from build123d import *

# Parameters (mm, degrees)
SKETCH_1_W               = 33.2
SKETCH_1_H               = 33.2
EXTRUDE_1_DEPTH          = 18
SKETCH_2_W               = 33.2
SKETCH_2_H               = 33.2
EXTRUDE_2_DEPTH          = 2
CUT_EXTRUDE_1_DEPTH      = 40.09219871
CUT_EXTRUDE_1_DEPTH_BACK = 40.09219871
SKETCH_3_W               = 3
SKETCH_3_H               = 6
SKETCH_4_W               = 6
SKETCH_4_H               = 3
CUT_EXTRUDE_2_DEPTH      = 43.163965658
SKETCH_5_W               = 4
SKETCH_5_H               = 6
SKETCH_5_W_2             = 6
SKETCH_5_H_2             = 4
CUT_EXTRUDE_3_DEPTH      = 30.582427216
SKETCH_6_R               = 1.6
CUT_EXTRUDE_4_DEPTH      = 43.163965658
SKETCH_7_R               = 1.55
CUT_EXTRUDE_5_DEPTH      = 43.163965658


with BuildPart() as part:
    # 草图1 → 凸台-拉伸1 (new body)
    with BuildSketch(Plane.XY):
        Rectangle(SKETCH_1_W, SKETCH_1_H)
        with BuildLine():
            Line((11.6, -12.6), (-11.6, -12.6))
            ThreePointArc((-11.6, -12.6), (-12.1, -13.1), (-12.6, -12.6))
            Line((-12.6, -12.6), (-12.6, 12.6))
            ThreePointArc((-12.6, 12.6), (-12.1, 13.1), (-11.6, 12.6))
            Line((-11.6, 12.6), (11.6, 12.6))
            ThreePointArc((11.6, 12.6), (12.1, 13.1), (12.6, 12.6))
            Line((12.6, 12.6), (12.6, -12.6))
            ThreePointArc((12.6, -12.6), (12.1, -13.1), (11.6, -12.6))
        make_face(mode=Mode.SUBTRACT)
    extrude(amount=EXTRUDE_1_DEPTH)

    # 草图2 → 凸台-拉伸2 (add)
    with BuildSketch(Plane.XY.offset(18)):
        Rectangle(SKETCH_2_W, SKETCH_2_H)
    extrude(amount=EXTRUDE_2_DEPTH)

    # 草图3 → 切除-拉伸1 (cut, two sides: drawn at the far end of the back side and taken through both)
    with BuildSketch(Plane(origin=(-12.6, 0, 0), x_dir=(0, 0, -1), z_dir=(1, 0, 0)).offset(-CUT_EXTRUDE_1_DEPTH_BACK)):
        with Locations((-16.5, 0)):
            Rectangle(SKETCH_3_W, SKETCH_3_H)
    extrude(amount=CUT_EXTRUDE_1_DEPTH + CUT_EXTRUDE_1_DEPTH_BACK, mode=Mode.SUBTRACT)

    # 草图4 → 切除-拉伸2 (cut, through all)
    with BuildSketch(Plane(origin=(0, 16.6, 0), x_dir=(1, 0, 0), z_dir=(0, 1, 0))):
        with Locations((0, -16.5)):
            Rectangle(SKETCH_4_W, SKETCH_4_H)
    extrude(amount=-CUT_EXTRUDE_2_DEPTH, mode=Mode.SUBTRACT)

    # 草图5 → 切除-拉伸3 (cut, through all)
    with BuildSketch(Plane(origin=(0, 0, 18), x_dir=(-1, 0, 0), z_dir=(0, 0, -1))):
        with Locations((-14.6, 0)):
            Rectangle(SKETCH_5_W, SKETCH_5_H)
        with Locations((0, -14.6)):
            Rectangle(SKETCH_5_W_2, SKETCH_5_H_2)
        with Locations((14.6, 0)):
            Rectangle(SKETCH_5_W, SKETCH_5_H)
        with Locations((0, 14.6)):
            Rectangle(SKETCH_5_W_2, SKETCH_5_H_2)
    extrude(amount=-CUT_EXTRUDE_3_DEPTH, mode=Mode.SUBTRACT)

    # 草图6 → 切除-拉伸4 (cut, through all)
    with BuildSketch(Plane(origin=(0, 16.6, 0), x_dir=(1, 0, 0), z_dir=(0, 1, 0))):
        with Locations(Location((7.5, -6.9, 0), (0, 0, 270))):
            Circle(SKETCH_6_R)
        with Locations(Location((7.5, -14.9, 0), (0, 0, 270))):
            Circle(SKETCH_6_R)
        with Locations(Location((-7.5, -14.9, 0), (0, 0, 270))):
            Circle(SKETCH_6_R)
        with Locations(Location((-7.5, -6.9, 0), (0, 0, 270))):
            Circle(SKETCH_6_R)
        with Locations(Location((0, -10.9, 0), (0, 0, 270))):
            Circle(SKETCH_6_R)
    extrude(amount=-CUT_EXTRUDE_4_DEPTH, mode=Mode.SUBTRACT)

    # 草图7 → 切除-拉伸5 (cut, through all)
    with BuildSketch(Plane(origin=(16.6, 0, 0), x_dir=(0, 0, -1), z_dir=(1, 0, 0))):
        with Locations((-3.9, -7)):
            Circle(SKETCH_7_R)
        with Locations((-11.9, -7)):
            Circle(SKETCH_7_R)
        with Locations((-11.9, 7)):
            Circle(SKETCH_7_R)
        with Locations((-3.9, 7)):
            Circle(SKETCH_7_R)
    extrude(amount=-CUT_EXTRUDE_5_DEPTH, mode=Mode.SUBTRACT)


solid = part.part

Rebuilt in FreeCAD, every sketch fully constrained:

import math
import FreeCAD as App
import Part
import Sketcher
from FreeCAD import Vector


def add_polygon(sketch, points):
    """Adds a closed chain of lines whose ends are joined by coincident constraints."""
    first, n = sketch.GeometryCount, len(points)
    for a, b in zip(points, points[1:] + points[:1]):
        sketch.addGeometry(Part.LineSegment(App.Vector(*a, 0), App.Vector(*b, 0)), False)
    for i in range(n):
        sketch.addConstraint(Sketcher.Constraint("Coincident", first + i, 2, first + (i + 1) % n, 1))

doc = App.newDocument("Part")
body = doc.addObject("PartDesign::Body", "Body")

# Sketch on XY plane
sketch1 = body.newObject("Sketcher::SketchObject", "Sketch")
sketch1.AttachmentSupport = (doc.getObject("XY_Plane"), [""])
sketch1.MapMode = "FlatFace"
add_polygon(sketch1, [(-16.6, 16.6), (-16.6, -16.6), (16.6, -16.6), (16.6, 16.6)])  # lines 0-3
sketch1.addGeometry(Part.ArcOfCircle(Part.Circle(Vector(12.1, -12.6, 0), Vector(0, 0, 1), 0.5), math.radians(180), math.radians(360)), False)  # 4
sketch1.addGeometry(Part.LineSegment(Vector(11.6, -12.6, 0), Vector(-11.6, -12.6, 0)), False)  # 5
sketch1.addGeometry(Part.ArcOfCircle(Part.Circle(Vector(-12.1, -12.6, 0), Vector(0, 0, 1), 0.5), math.radians(180), math.radians(360)), False)  # 6
sketch1.addGeometry(Part.LineSegment(Vector(-12.6, -12.6, 0), Vector(-12.6, 12.6, 0)), False)  # 7
sketch1.addGeometry(Part.ArcOfCircle(Part.Circle(Vector(-12.1, 12.6, 0), Vector(0, 0, 1), 0.5), math.radians(0), math.radians(180)), False)  # 8
sketch1.addGeometry(Part.LineSegment(Vector(-11.6, 12.6, 0), Vector(11.6, 12.6, 0)), False)  # 9
sketch1.addGeometry(Part.ArcOfCircle(Part.Circle(Vector(12.1, 12.6, 0), Vector(0, 0, 1), 0.5), math.radians(0), math.radians(180)), False)  # 10
sketch1.addGeometry(Part.LineSegment(Vector(12.6, 12.6, 0), Vector(12.6, -12.6, 0)), False)  # 11
sketch1.addConstraint([
    Sketcher.Constraint("Coincident", 4, 1, 5, 1),
    Sketcher.Constraint("Coincident", 5, 2, 6, 2),
    Sketcher.Constraint("Tangent", 6, 1, 7, 1),
    Sketcher.Constraint("Tangent", 7, 2, 8, 2),
    Sketcher.Constraint("Coincident", 8, 1, 9, 1),
    Sketcher.Constraint("Coincident", 9, 2, 10, 2),
    Sketcher.Constraint("Tangent", 10, 1, 11, 1),
    Sketcher.Constraint("Tangent", 11, 2, 4, 2),
    Sketcher.Constraint("Vertical", 0),
    Sketcher.Constraint("Horizontal", 1),
    Sketcher.Constraint("Vertical", 2),
    Sketcher.Constraint("Horizontal", 3),
    Sketcher.Constraint("Horizontal", 5),
    Sketcher.Constraint("Vertical", 7),
    Sketcher.Constraint("Horizontal", 9),
    Sketcher.Constraint("Vertical", 11),
    Sketcher.Constraint("Equal", 4, 6),
    Sketcher.Constraint("Equal", 6, 8),
    Sketcher.Constraint("Equal", 8, 10),
    Sketcher.Constraint("Symmetric", 4, 3, 8, 3, -1, 1),
    Sketcher.Constraint("Symmetric", 0, 2, 2, 2, -1, 1),
    Sketcher.Constraint("Horizontal", 4, 3, 6, 3),
    Sketcher.Constraint("Horizontal", 8, 3, 10, 3),
    Sketcher.Constraint("Horizontal", 6, 3, 4, 1),
    Sketcher.Constraint("Horizontal", 7, 2, 8, 1),
    Sketcher.Constraint("Equal", 3, 0),
    Sketcher.Constraint("Radius", 4, 0.5),
    Sketcher.Constraint("DistanceX", 1, 1, 1, 2, 33.2),
    Sketcher.Constraint("DistanceX", 5, 2, 5, 1, 23.2),
    Sketcher.Constraint("DistanceY", 7, 1, 7, 2, 25.2),
])
pad1 = body.newObject("PartDesign::Pad", "Pad")
pad1.Profile = sketch1
pad1.Length = 18

# Sketch on XY plane
sketch2 = body.newObject("Sketcher::SketchObject", "Sketch001")
sketch2.AttachmentSupport = (doc.getObject("XY_Plane"), [""])
sketch2.MapMode = "FlatFace"
sketch2.AttachmentOffset = App.Placement(Vector(0, 0, 18), App.Rotation())
add_polygon(sketch2, [(-17, 17), (-17, -17), (17, -17), (17, 17)])  # lines 0-3
sketch2.addConstraint([
    Sketcher.Constraint("Vertical", 0),
    Sketcher.Constraint("Horizontal", 1),
    Sketcher.Constraint("Vertical", 2),
    Sketcher.Constraint("Horizontal", 3),
    Sketcher.Constraint("Symmetric", 0, 2, 2, 2, -1, 1),
    Sketcher.Constraint("Equal", 3, 0),
    Sketcher.Constraint("DistanceX", 1, 1, 1, 2, 33.2),
])
pad2 = body.newObject("PartDesign::Pad", "Pad001")
pad2.Profile = sketch2
pad2.Length = 2

# Sketch on YZ plane
sketch3 = body.newObject("Sketcher::SketchObject", "Sketch002")
sketch3.AttachmentSupport = (doc.getObject("YZ_Plane"), [""])
sketch3.MapMode = "FlatFace"
sketch3.AttachmentOffset = App.Placement(Vector(0, 0, -12.6), App.Rotation())
add_polygon(sketch3, [(3, 18), (-3, 18), (-3, 15), (3, 15)])  # lines 0-3
sketch3.addConstraint([
    Sketcher.Constraint("Horizontal", 0),
    Sketcher.Constraint("Vertical", 1),
    Sketcher.Constraint("Horizontal", 2),
    Sketcher.Constraint("Vertical", 3),
    Sketcher.Constraint("DistanceX", 0, 2, 0, 1, 6.0),
    Sketcher.Constraint("DistanceY", 1, 2, 1, 1, 3.0),
    Sketcher.Constraint("DistanceX", 0, 2, -1, 1, 3.0),
    Sketcher.Constraint("DistanceY", -1, 1, 0, 2, 18.0),
])
pocket1 = body.newObject("PartDesign::Pocket", "Pocket")
pocket1.Profile = sketch3
pocket1.Type = "ThroughAll"
pocket1.Midplane = True

# Sketch on XZ plane
sketch4 = body.newObject("Sketcher::SketchObject", "Sketch003")
sketch4.AttachmentSupport = (doc.getObject("XZ_Plane"), [""])
sketch4.MapMode = "FlatFace"
sketch4.AttachmentOffset = App.Placement(Vector(0, 0, -16.6), App.Rotation())
add_polygon(sketch4, [(-3, 15), (-3, 18), (3, 18), (3, 15)])  # lines 0-3
sketch4.addConstraint([
    Sketcher.Constraint("Vertical", 0),
    Sketcher.Constraint("Horizontal", 1),
    Sketcher.Constraint("Vertical", 2),
    Sketcher.Constraint("Horizontal", 3),
    Sketcher.Constraint("DistanceX", 1, 1, 1, 2, 6.0),
    Sketcher.Constraint("DistanceY", 0, 1, 0, 2, 3.0),
    Sketcher.Constraint("DistanceX", 0, 2, -1, 1, 3.0),
    Sketcher.Constraint("DistanceY", -1, 1, 0, 2, 18.0),
])
pocket2 = body.newObject("PartDesign::Pocket", "Pocket001")
pocket2.Profile = sketch4
pocket2.Type = "ThroughAll"
pocket2.Reversed = True

# Sketch on XY plane
sketch5 = body.newObject("Sketcher::SketchObject", "Sketch004")
sketch5.AttachmentSupport = (doc.getObject("XY_Plane"), [""])
sketch5.MapMode = "FlatFace"
sketch5.AttachmentOffset = App.Placement(Vector(0, 0, 18), App.Rotation())
add_polygon(sketch5, [(16.6, 3), (16.6, -3), (12.6, -3), (12.6, 3)])  # lines 0-3
add_polygon(sketch5, [(3, -12.6), (3, -16.6), (-3, -16.6), (-3, -12.6)])  # lines 4-7
add_polygon(sketch5, [(-12.6, 3), (-12.6, -3), (-16.6, -3), (-16.6, 3)])  # lines 8-11
add_polygon(sketch5, [(3, 16.6), (3, 12.6), (-3, 12.6), (-3, 16.6)])  # lines 12-15
sketch5.addConstraint([
    Sketcher.Constraint("Vertical", 0),
    Sketcher.Constraint("Horizontal", 1),
    Sketcher.Constraint("Vertical", 2),
    Sketcher.Constraint("Horizontal", 3),
    Sketcher.Constraint("Vertical", 4),
    Sketcher.Constraint("Horizontal", 5),
    Sketcher.Constraint("Vertical", 6),
    Sketcher.Constraint("Horizontal", 7),
    Sketcher.Constraint("Vertical", 8),
    Sketcher.Constraint("Horizontal", 9),
    Sketcher.Constraint("Vertical", 10),
    Sketcher.Constraint("Horizontal", 11),
    Sketcher.Constraint("Vertical", 12),
    Sketcher.Constraint("Horizontal", 13),
    Sketcher.Constraint("Vertical", 14),
    Sketcher.Constraint("Horizontal", 15),
    Sketcher.Constraint("Symmetric", 2, 2, 8, 2, -1, 1),
    Sketcher.Constraint("Symmetric", 0, 2, 10, 2, -1, 1),
    Sketcher.Constraint("Symmetric", 6, 2, 12, 2, -1, 1),
    Sketcher.Constraint("Symmetric", 4, 2, 14, 2, -1, 1),
    Sketcher.Constraint("Horizontal", 1, 2, 8, 2),
    Sketcher.Constraint("Vertical", 7, 2, 12, 2),
    Sketcher.Constraint("Equal", 15, 0),
    Sketcher.Constraint("Equal", 11, 4),
    Sketcher.Constraint("DistanceX", 1, 2, 1, 1, 4.0),
    Sketcher.Constraint("DistanceX", 5, 2, 5, 1, 6.0),
    Sketcher.Constraint("DistanceX", -1, 1, 0, 2, 16.6),
    Sketcher.Constraint("DistanceY", 4, 2, -1, 1, 16.6),
])
pocket3 = body.newObject("PartDesign::Pocket", "Pocket002")
pocket3.Profile = sketch5
pocket3.Type = "ThroughAll"
pocket3.Reversed = True

# Sketch on XZ plane
sketch6 = body.newObject("Sketcher::SketchObject", "Sketch005")
sketch6.AttachmentSupport = (doc.getObject("XZ_Plane"), [""])
sketch6.MapMode = "FlatFace"
sketch6.AttachmentOffset = App.Placement(Vector(0, 0, -16.6), App.Rotation())
sketch6.addGeometry([
    Part.Circle(Vector(7.5, 6.9, 0), Vector(0, 0, 1), 1.6),  # 0
    Part.Circle(Vector(7.5, 14.9, 0), Vector(0, 0, 1), 1.6),  # 1
    Part.Circle(Vector(-7.5, 14.9, 0), Vector(0, 0, 1), 1.6),  # 2
    Part.Circle(Vector(-7.5, 6.9, 0), Vector(0, 0, 1), 1.6),  # 3
    Part.Circle(Vector(0, 10.9, 0), Vector(0, 0, 1), 1.6),  # 4
], False)
sketch6.addConstraint([
    Sketcher.Constraint("Equal", 0, 1),
    Sketcher.Constraint("Equal", 1, 2),
    Sketcher.Constraint("Equal", 2, 3),
    Sketcher.Constraint("Equal", 3, 4),
    Sketcher.Constraint("Symmetric", 1, 3, 2, 3, -2),
    Sketcher.Constraint("Symmetric", 0, 3, 3, 3, -2),
    Sketcher.Constraint("PointOnObject", 4, 3, -2),
    Sketcher.Constraint("Vertical", 0, 3, 1, 3),
    Sketcher.Constraint("Diameter", 0, 3.2),
    Sketcher.Constraint("DistanceY", 0, 3, 1, 3, 8.0),
    Sketcher.Constraint("DistanceX", 2, 3, 1, 3, 15.0),
    Sketcher.Constraint("DistanceY", 0, 3, 4, 3, 4.0),
    Sketcher.Constraint("DistanceY", -1, 1, 0, 3, 6.9),
])
pocket4 = body.newObject("PartDesign::Pocket", "Pocket003")
pocket4.Profile = sketch6
pocket4.Type = "ThroughAll"
pocket4.Reversed = True

# Sketch on YZ plane
sketch7 = body.newObject("Sketcher::SketchObject", "Sketch006")
sketch7.AttachmentSupport = (doc.getObject("YZ_Plane"), [""])
sketch7.MapMode = "FlatFace"
sketch7.AttachmentOffset = App.Placement(Vector(0, 0, 16.6), App.Rotation())
sketch7.addGeometry([
    Part.Circle(Vector(-7, 3.9, 0), Vector(0, 0, 1), 1.6),
    Part.Circle(Vector(-7, 11.9, 0), Vector(0, 0, 1), 1.6),
    Part.Circle(Vector(7, 11.9, 0), Vector(0, 0, 1), 1.6),
    Part.Circle(Vector(7, 3.9, 0), Vector(0, 0, 1), 1.6),
], False)
sketch7.addConstraint([
    Sketcher.Constraint("Equal", 0, 1),
    Sketcher.Constraint("Equal", 1, 2),
    Sketcher.Constraint("Equal", 2, 3),
    Sketcher.Constraint("Symmetric", 1, 3, 2, 3, -2),
    Sketcher.Constraint("Symmetric", 0, 3, 3, 3, -2),
    Sketcher.Constraint("Vertical", 0, 3, 1, 3),
    Sketcher.Constraint("Diameter", 0, 3.1),
    Sketcher.Constraint("DistanceX", 0, 3, -1, 1, 7.0),
    Sketcher.Constraint("DistanceY", 0, 3, 1, 3, 8.0),
    Sketcher.Constraint("DistanceY", -1, 1, 0, 3, 3.9),
])
pocket5 = body.newObject("PartDesign::Pocket", "Pocket004")
pocket5.Profile = sketch7
pocket5.Type = "ThroughAll"

doc.recompute()
